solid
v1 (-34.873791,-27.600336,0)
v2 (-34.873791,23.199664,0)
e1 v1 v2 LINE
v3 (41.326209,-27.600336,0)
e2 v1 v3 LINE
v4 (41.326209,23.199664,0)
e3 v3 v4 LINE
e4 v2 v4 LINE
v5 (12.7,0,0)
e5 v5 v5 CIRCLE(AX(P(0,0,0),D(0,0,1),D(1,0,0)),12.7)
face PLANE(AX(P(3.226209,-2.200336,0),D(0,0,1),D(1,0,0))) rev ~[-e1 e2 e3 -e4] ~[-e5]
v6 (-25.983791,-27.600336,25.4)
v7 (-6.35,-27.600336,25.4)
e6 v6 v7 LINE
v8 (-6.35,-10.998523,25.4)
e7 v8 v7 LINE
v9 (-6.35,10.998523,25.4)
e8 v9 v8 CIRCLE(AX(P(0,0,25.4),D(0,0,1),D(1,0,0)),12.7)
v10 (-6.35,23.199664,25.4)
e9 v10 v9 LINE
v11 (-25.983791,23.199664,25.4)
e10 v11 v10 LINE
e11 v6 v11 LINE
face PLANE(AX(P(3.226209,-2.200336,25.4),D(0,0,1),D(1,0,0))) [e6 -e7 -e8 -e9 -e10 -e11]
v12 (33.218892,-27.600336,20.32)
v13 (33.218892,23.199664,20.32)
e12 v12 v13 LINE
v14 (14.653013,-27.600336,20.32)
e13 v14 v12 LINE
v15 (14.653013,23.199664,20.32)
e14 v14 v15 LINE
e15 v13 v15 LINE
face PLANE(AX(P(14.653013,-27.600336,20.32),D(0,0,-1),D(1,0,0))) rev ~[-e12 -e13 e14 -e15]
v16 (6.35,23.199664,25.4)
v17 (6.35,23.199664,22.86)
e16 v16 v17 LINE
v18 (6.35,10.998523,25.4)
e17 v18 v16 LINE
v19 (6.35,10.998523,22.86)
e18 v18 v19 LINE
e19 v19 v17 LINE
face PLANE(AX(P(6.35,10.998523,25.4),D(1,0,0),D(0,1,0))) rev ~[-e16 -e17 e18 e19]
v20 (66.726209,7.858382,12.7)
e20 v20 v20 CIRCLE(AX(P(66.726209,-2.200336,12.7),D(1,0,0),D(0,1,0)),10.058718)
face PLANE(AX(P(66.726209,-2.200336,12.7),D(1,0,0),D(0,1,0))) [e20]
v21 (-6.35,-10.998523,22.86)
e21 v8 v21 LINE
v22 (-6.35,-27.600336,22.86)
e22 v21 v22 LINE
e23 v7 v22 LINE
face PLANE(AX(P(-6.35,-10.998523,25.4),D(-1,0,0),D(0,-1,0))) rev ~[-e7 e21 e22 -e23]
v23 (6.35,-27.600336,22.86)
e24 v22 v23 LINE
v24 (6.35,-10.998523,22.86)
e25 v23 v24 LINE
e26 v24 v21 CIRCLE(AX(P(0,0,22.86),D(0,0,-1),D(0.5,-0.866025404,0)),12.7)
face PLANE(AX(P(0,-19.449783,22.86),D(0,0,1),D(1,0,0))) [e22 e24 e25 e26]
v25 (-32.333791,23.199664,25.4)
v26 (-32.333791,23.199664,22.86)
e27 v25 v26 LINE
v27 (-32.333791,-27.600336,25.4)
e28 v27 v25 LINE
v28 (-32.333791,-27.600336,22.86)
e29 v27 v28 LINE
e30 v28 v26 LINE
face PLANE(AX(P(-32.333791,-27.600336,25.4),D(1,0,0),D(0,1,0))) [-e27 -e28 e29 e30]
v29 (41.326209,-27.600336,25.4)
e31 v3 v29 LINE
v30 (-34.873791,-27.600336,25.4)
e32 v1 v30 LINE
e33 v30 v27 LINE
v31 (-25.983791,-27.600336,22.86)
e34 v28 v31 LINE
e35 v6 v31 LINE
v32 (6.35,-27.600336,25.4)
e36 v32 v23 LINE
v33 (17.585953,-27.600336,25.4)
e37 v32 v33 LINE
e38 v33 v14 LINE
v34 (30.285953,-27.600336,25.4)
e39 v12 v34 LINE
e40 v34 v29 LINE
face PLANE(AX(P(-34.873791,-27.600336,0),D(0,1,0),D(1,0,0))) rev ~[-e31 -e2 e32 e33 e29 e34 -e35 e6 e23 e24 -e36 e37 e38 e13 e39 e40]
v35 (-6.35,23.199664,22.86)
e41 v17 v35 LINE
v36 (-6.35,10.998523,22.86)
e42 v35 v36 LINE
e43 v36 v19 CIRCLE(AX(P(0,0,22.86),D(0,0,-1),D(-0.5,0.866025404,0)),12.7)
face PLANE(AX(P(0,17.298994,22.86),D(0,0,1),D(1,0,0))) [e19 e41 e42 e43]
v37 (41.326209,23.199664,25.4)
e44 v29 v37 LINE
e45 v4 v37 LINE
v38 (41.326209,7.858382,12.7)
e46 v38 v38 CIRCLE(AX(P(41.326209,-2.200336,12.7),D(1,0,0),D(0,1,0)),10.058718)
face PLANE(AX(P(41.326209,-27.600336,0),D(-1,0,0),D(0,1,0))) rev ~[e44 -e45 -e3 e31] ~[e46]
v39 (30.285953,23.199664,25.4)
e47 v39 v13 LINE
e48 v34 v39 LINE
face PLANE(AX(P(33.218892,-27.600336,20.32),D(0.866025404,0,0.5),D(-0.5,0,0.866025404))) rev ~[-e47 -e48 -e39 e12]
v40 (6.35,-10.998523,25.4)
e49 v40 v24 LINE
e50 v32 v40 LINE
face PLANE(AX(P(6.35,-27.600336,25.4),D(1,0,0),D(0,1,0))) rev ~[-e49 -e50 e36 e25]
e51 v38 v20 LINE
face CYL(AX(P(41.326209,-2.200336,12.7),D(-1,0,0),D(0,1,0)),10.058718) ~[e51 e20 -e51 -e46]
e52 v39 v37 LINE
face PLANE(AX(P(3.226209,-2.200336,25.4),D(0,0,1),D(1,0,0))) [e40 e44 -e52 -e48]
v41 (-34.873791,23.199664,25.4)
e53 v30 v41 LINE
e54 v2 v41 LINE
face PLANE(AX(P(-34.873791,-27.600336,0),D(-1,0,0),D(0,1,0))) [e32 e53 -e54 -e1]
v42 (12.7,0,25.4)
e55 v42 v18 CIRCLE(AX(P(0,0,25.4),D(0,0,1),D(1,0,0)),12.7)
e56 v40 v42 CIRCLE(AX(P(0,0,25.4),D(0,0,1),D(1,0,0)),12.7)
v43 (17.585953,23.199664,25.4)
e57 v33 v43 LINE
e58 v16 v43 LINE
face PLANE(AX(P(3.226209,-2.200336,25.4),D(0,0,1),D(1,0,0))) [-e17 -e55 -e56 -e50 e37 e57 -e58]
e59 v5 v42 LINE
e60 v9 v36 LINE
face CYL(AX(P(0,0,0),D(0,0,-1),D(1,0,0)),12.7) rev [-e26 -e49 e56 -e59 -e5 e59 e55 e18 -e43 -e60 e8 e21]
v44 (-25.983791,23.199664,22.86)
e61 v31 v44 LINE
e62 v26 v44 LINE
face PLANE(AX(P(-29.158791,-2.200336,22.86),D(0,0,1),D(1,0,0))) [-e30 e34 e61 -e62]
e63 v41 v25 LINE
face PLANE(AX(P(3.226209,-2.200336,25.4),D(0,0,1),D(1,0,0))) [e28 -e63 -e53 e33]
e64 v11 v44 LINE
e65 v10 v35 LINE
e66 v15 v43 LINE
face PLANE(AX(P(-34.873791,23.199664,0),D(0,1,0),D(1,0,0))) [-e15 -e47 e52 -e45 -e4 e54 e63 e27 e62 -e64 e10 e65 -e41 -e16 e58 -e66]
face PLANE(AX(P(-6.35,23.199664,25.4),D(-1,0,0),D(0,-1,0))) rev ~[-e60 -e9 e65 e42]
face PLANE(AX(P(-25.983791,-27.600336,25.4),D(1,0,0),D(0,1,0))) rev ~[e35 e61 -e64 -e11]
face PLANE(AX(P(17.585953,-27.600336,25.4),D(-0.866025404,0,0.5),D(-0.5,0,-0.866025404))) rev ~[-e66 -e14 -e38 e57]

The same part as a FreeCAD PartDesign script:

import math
import FreeCAD as App
import Part
import Sketcher
Q = App.Units.Quantity


def add_polygon(sketch, points):
    """Adds a closed chain of lines whose ends are joined by coincident constraints."""
    first, n = sketch.GeometryCount, len(points)
    for a, b in zip(points, points[1:] + points[:1]):
        sketch.addGeometry(Part.LineSegment(App.Vector(*a, 0), App.Vector(*b, 0)), False)
    for i in range(n):
        sketch.addConstraint(Sketcher.Constraint("Coincident", first + i, 2, first + (i + 1) % n, 1))

doc = App.newDocument("Part")
body = doc.addObject("PartDesign::Body", "Body")

sketch1 = doc.addObject("Sketcher::SketchObject", "Sketch")
body.addObject(sketch1)
sketch1.AttachmentSupport = (doc.XY_Plane, [""])
sketch1.MapMode = "FlatFace"
add_polygon(sketch1, [(-35, 23), (-35, -28), (41, -28), (41, 23)])
sketch1.addGeometry(Part.Circle(App.Vector(0, 0, 0), App.Vector(0, 0, 1), 13), False)
sketch1.addConstraint([
    Sketcher.Constraint("Vertical", 0),
    Sketcher.Constraint("Horizontal", 1),
    Sketcher.Constraint("Vertical", 2),
    Sketcher.Constraint("Horizontal", 3),
    Sketcher.Constraint("Coincident", 4, 3, -1, 1),
    Sketcher.Constraint("Diameter", 4, Q("1 in")),
    Sketcher.Constraint("DistanceX", 1, 1, 1, 2, Q("3 in")),
    Sketcher.Constraint("DistanceY", 0, 2, 0, 1, Q("2 in")),
    Sketcher.Constraint("DistanceX", 0, 2, -1, 1, Q("34.873791 mm")),
    Sketcher.Constraint("DistanceY", 0, 2, -1, 1, Q("27.600336 mm")),
])
pad1 = doc.addObject("PartDesign::Pad", "Pad")
body.addObject(pad1)
pad1.Profile = sketch1
pad1.Length = Q("1 in")

sketch2 = doc.addObject("Sketcher::SketchObject", "Sketch001")
body.addObject(sketch2)
sketch2.AttachmentSupport = (doc.XY_Plane, [""])
sketch2.MapMode = "FlatFace"
sketch2.AttachmentOffset = App.Placement(App.Vector(0, 0, 1 * 25.4), App.Rotation())
add_polygon(sketch2, [(-32, 23), (-32, -28), (-26, -28), (-26, 23)])
sketch2.addGeometry(Part.LineSegment(App.Vector(-6, -11, 0), App.Vector(-6, -28, 0)), False)
sketch2.addGeometry(Part.LineSegment(App.Vector(-6, -28, 0), App.Vector(6, -28, 0)), False)
sketch2.addGeometry(Part.LineSegment(App.Vector(6, -28, 0), App.Vector(6, -11, 0)), False)
sketch2.addGeometry(Part.ArcOfCircle(Part.Circle(App.Vector(0, 0, 0), App.Vector(0, 0, 1), 13), math.radians(-120), math.radians(-60)), False)
sketch2.addGeometry(Part.LineSegment(App.Vector(6, 23, 0), App.Vector(-6, 23, 0)), False)
sketch2.addGeometry(Part.LineSegment(App.Vector(-6, 23, 0), App.Vector(-6, 11, 0)), False)
sketch2.addGeometry(Part.ArcOfCircle(Part.Circle(App.Vector(0, 0, 0), App.Vector(0, 0, 1), 13), math.radians(60), math.radians(120)), False)
sketch2.addGeometry(Part.LineSegment(App.Vector(6, 11, 0), App.Vector(6, 23, 0)), False)
sketch2.addConstraint([
    Sketcher.Constraint("Coincident", 4, 2, 5, 1),
    Sketcher.Constraint("Coincident", 5, 2, 6, 1),
    Sketcher.Constraint("Coincident", 6, 2, 7, 2),
    Sketcher.Constraint("Coincident", 7, 1, 4, 1),
    Sketcher.Constraint("Coincident", 8, 2, 9, 1),
    Sketcher.Constraint("Coincident", 9, 2, 10, 2),
    Sketcher.Constraint("Coincident", 10, 1, 11, 1),
    Sketcher.Constraint("Coincident", 11, 2, 8, 1),
    Sketcher.Constraint("Vertical", 0),
    Sketcher.Constraint("Horizontal", 1),
    Sketcher.Constraint("Vertical", 2),
    Sketcher.Constraint("Horizontal", 3),
    Sketcher.Constraint("Vertical", 4),
    Sketcher.Constraint("Horizontal", 5),
    Sketcher.Constraint("Vertical", 6),
    Sketcher.Constraint("Horizontal", 8),
    Sketcher.Constraint("Vertical", 9),
    Sketcher.Constraint("Vertical", 11),
    Sketcher.Constraint("Coincident", 7, 3, -1, 1),
    Sketcher.Constraint("Coincident", 10, 3, -1, 1),
    Sketcher.Constraint("Equal", 7, 10),
    Sketcher.Constraint("Horizontal", 1, 2, 4, 2),
    Sketcher.Constraint("Horizontal", 6, 2, 7, 1),
    Sketcher.Constraint("Horizontal", 3, 2, 8, 2),
    Sketcher.Constraint("Horizontal", 9, 2, 10, 1),
    Sketcher.Constraint("Vertical", 7, 1, 8, 2),
    Sketcher.Constraint("Radius", 7, Q("0.5 in")),
    Sketcher.Constraint("DistanceY", 0, 2, 0, 1, Q("2 in")),
    Sketcher.Constraint("DistanceX", 5, 1, 5, 2, Q("0.5 in")),
    Sketcher.Constraint("DistanceX", 1, 1, 1, 2, Q("0.25 in")),
    Sketcher.Constraint("DistanceY", 9, 2, 9, 1, Q("12.201141 mm")),
    Sketcher.Constraint("DistanceX", 0, 2, -1, 1, Q("32.333791 mm")),
])
pocket1 = doc.addObject("PartDesign::Pocket", "Pocket")
body.addObject(pocket1)
pocket1.Profile = sketch2
pocket1.Length = Q("0.1 in")

sketch3 = doc.addObject("Sketcher::SketchObject", "Sketch002")
body.addObject(sketch3)
sketch3.AttachmentSupport = (doc.YZ_Plane, [""])
sketch3.MapMode = "FlatFace"
sketch3.AttachmentOffset = App.Placement(App.Vector(0, 0, 41.326209), App.Rotation())
sketch3.addGeometry(Part.Circle(App.Vector(-2, 13, 0), App.Vector(0, 0, 1), 10), False)
sketch3.addConstraint([
    Sketcher.Constraint("DistanceY", -1, 1, 0, 3, Q("0.5 in")),
    Sketcher.Constraint("Diameter", 0, Q("20.117437 mm")),
    Sketcher.Constraint("DistanceX", 0, 3, -1, 1, Q("2.200336 mm")),
])
pad2 = doc.addObject("PartDesign::Pad", "Pad001")
body.addObject(pad2)
pad2.Profile = sketch3
pad2.Length = Q("1 in")

sketch4 = doc.addObject("Sketcher::SketchObject", "Sketch003")
body.addObject(sketch4)
sketch4.AttachmentSupport = (doc.YZ_Plane, [""])
sketch4.MapMode = "FlatFace"
sketch4.AttachmentOffset = App.Placement(App.Vector(0, 0, 41.326209), App.Rotation())
sketch4.addGeometry(Part.Circle(App.Vector(-2, 13, 0), App.Vector(0, 0, 1), 10), False)
sketch4.addConstraint([
    Sketcher.Constraint("DistanceY", -1, 1, 0, 3, Q("0.5 in")),
    Sketcher.Constraint("Diameter", 0, Q("20.117437 mm")),
    Sketcher.Constraint("DistanceX", 0, 3, -1, 1, Q("2.200336 mm")),
])
pad3 = doc.addObject("PartDesign::Pad", "Pad002")
body.addObject(pad3)
pad3.Profile = sketch4
pad3.Length = Q("0.49 in")
pad3.Reversed = True

sketch5 = doc.addObject("Sketcher::SketchObject", "Sketch004")
body.addObject(sketch5)
sketch5.AttachmentSupport = (doc.XZ_Plane, [""])
sketch5.MapMode = "FlatFace"
sketch5.AttachmentOffset = App.Placement(App.Vector(0, 0, 27.600336), App.Rotation())
add_polygon(sketch5, [(30, 25), (18, 25), (15, 20), (33, 20)])
sketch5.addConstraint([
    Sketcher.Constraint("Horizontal", 0),
    Sketcher.Constraint("Horizontal", 2),
    Sketcher.Constraint("Equal", 1, 3),
    Sketcher.Constraint("DistanceX", 0, 2, 0, 1, Q("0.5 in")),
    Sketcher.Constraint("DistanceY", -1, 1, 0, 2, Q("1 in")),
    Sketcher.Constraint("Angle", 1, Q("-120 deg")),
    Sketcher.Constraint("DistanceY", -1, 1, 1, 2, Q("0.8 in")),
    Sketcher.Constraint("DistanceX", -1, 1, 2, 2, Q("33.218892 mm")),
])
pocket2 = doc.addObject("PartDesign::Pocket", "Pocket001")
body.addObject(pocket2)
pocket2.Profile = sketch5
pocket2.Length = Q("2.77 in")

doc.recompute()
